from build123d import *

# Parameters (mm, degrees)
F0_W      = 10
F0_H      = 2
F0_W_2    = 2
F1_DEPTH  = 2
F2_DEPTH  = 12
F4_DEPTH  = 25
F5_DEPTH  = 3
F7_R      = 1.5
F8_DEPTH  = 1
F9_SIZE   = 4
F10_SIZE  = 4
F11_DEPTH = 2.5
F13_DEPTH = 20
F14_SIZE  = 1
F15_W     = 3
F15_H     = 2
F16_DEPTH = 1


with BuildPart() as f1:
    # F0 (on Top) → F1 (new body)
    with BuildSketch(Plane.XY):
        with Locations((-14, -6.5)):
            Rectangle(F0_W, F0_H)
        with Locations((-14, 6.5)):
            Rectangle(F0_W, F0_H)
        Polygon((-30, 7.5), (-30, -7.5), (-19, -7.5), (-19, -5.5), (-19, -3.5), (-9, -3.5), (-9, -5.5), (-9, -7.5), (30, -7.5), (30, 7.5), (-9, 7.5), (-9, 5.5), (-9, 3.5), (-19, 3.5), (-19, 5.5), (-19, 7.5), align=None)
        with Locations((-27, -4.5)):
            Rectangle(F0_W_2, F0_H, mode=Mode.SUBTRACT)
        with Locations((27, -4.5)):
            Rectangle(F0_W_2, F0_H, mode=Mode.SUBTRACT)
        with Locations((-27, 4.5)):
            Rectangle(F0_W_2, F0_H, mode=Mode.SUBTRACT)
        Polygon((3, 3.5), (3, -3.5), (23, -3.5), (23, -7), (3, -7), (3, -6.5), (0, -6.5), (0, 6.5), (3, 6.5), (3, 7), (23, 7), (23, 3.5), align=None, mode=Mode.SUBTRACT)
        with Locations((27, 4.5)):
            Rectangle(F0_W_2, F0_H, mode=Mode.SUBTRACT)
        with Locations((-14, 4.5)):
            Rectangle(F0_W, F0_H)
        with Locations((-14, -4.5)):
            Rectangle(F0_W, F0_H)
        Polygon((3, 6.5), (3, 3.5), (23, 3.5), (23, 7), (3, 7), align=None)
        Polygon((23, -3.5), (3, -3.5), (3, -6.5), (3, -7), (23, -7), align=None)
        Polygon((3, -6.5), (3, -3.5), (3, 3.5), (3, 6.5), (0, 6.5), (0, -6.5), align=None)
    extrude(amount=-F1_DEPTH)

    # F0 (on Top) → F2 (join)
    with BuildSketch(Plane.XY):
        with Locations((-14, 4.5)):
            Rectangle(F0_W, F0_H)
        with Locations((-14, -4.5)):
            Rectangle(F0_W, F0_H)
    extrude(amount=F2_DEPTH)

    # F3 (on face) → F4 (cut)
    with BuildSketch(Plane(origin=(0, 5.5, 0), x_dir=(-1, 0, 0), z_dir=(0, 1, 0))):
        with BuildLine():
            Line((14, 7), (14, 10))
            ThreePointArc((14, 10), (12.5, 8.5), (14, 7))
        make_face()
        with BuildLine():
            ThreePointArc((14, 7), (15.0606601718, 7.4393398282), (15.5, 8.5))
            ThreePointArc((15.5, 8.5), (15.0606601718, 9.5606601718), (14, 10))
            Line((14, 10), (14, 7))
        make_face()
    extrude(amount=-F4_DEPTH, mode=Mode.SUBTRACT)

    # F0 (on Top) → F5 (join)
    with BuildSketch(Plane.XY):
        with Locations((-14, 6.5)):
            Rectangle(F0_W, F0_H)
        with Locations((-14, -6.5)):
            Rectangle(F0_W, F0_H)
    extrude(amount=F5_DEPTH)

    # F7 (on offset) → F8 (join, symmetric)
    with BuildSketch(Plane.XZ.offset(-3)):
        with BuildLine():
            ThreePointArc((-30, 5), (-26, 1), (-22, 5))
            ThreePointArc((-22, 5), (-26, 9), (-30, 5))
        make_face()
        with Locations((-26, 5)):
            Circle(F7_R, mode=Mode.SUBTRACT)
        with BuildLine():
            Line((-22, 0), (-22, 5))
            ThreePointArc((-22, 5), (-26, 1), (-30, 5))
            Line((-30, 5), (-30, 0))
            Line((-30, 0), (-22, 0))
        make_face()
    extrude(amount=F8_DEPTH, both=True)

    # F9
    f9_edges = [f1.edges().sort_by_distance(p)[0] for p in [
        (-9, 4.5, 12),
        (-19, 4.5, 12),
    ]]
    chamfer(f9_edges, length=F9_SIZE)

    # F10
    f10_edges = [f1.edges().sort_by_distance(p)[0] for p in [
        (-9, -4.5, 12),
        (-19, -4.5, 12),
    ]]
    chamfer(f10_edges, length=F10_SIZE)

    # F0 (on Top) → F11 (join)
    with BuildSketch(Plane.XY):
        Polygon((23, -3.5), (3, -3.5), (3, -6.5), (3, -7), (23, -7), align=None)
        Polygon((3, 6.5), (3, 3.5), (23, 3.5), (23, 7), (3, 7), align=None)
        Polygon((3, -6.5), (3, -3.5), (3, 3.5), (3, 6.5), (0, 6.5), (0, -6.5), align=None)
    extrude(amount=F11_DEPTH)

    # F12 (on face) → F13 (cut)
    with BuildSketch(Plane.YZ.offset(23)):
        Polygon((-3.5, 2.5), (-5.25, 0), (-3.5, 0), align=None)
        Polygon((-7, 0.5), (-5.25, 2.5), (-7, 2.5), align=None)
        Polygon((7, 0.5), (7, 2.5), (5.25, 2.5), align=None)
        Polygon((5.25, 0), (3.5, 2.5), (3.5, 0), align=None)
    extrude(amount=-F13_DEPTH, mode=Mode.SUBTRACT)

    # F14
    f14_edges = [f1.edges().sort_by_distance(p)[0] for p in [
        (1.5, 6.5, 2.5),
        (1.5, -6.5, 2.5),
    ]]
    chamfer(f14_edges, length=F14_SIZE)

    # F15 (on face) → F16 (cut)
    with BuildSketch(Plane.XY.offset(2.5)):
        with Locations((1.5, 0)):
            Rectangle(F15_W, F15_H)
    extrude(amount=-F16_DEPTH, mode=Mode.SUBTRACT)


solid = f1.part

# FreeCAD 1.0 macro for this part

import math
import FreeCAD as App
import Part
import Sketcher

V = App.Vector
Q = App.Units.Quantity


def edges_at(feature, points):
    """Names of the edges that pass closest to the given points."""
    edges = feature.Shape.Edges
    near = lambda p: min(range(len(edges)), key=lambda i: edges[i].distToShape(Part.Vertex(*p))[0])
    return sorted({f"Edge{near(p) + 1}" for p in points})

doc = App.newDocument("Part")
body = doc.addObject("PartDesign::Body", "Body")

sketch1 = doc.addObject("Sketcher::SketchObject", "Sketch")
body.addObject(sketch1)
sketch1.AttachmentSupport = (doc.XY_Plane, [""])
sketch1.MapMode = "FlatFace"
sketch1.addGeometry(Part.LineSegment(V(30, -7.5, 0), V(30, 7.5, 0)), False)
sketch1.addGeometry(Part.LineSegment(V(30, 7.5, 0), V(-30, 7.5, 0)), False)
sketch1.addGeometry(Part.LineSegment(V(-30, 7.5, 0), V(-30, -7.5, 0)), False)
sketch1.addGeometry(Part.LineSegment(V(-30, -7.5, 0), V(30, -7.5, 0)), False)
sketch1.addGeometry(Part.LineSegment(V(-26, -5.5, 0), V(-28, -5.5, 0)), False)
sketch1.addGeometry(Part.LineSegment(V(-28, -5.5, 0), V(-28, -3.5, 0)), False)
sketch1.addGeometry(Part.LineSegment(V(-28, -3.5, 0), V(-26, -3.5, 0)), False)
sketch1.addGeometry(Part.LineSegment(V(-26, -3.5, 0), V(-26, -5.5, 0)), False)
sketch1.addGeometry(Part.LineSegment(V(28, -5.5, 0), V(26, -5.5, 0)), False)
sketch1.addGeometry(Part.LineSegment(V(26, -5.5, 0), V(26, -3.5, 0)), False)
sketch1.addGeometry(Part.LineSegment(V(26, -3.5, 0), V(28, -3.5, 0)), False)
sketch1.addGeometry(Part.LineSegment(V(28, -3.5, 0), V(28, -5.5, 0)), False)
sketch1.addGeometry(Part.LineSegment(V(-26, 3.5, 0), V(-28, 3.5, 0)), False)
sketch1.addGeometry(Part.LineSegment(V(-28, 3.5, 0), V(-28, 5.5, 0)), False)
sketch1.addGeometry(Part.LineSegment(V(-28, 5.5, 0), V(-26, 5.5, 0)), False)
sketch1.addGeometry(Part.LineSegment(V(-26, 5.5, 0), V(-26, 3.5, 0)), False)
sketch1.addGeometry(Part.LineSegment(V(28, 3.5, 0), V(26, 3.5, 0)), False)
sketch1.addGeometry(Part.LineSegment(V(26, 3.5, 0), V(26, 5.5, 0)), False)
sketch1.addGeometry(Part.LineSegment(V(26, 5.5, 0), V(28, 5.5, 0)), False)
sketch1.addGeometry(Part.LineSegment(V(28, 5.5, 0), V(28, 3.5, 0)), False)
sketch1.addConstraint(Sketcher.Constraint("Coincident", 0, 2, 1, 1))
sketch1.addConstraint(Sketcher.Constraint("Coincident", 1, 2, 2, 1))
sketch1.addConstraint(Sketcher.Constraint("Coincident", 2, 2, 3, 1))
sketch1.addConstraint(Sketcher.Constraint("Coincident", 3, 2, 0, 1))
sketch1.addConstraint(Sketcher.Constraint("Coincident", 4, 2, 5, 1))
sketch1.addConstraint(Sketcher.Constraint("Coincident", 5, 2, 6, 1))
sketch1.addConstraint(Sketcher.Constraint("Coincident", 6, 2, 7, 1))
sketch1.addConstraint(Sketcher.Constraint("Coincident", 7, 2, 4, 1))
sketch1.addConstraint(Sketcher.Constraint("Coincident", 8, 2, 9, 1))
sketch1.addConstraint(Sketcher.Constraint("Coincident", 9, 2, 10, 1))
sketch1.addConstraint(Sketcher.Constraint("Coincident", 10, 2, 11, 1))
sketch1.addConstraint(Sketcher.Constraint("Coincident", 11, 2, 8, 1))
sketch1.addConstraint(Sketcher.Constraint("Coincident", 12, 2, 13, 1))
sketch1.addConstraint(Sketcher.Constraint("Coincident", 13, 2, 14, 1))
sketch1.addConstraint(Sketcher.Constraint("Coincident", 14, 2, 15, 1))
sketch1.addConstraint(Sketcher.Constraint("Coincident", 15, 2, 12, 1))
sketch1.addConstraint(Sketcher.Constraint("Coincident", 16, 2, 17, 1))
sketch1.addConstraint(Sketcher.Constraint("Coincident", 17, 2, 18, 1))
sketch1.addConstraint(Sketcher.Constraint("Coincident", 18, 2, 19, 1))
sketch1.addConstraint(Sketcher.Constraint("Coincident", 19, 2, 16, 1))
sketch1.addConstraint(Sketcher.Constraint("Vertical", 0))
sketch1.addConstraint(Sketcher.Constraint("Horizontal", 1))
sketch1.addConstraint(Sketcher.Constraint("Vertical", 2))
sketch1.addConstraint(Sketcher.Constraint("Horizontal", 3))
sketch1.addConstraint(Sketcher.Constraint("Horizontal", 4))
sketch1.addConstraint(Sketcher.Constraint("Vertical", 5))
sketch1.addConstraint(Sketcher.Constraint("Horizontal", 6))
sketch1.addConstraint(Sketcher.Constraint("Vertical", 7))
sketch1.addConstraint(Sketcher.Constraint("Horizontal", 8))
sketch1.addConstraint(Sketcher.Constraint("Vertical", 9))
sketch1.addConstraint(Sketcher.Constraint("Horizontal", 10))
sketch1.addConstraint(Sketcher.Constraint("Vertical", 11))
sketch1.addConstraint(Sketcher.Constraint("Horizontal", 12))
sketch1.addConstraint(Sketcher.Constraint("Vertical", 13))
sketch1.addConstraint(Sketcher.Constraint("Horizontal", 14))
sketch1.addConstraint(Sketcher.Constraint("Vertical", 15))
sketch1.addConstraint(Sketcher.Constraint("Horizontal", 16))
sketch1.addConstraint(Sketcher.Constraint("Vertical", 17))
sketch1.addConstraint(Sketcher.Constraint("Horizontal", 18))
sketch1.addConstraint(Sketcher.Constraint("Vertical", 19))
sketch1.addConstraint(Sketcher.Constraint("Symmetric", 0, 2, 2, 2, -1, 1))
sketch1.addConstraint(Sketcher.Constraint("Symmetric", 10, 2, 12, 2, -1, 1))
sketch1.addConstraint(Sketcher.Constraint("Symmetric", 8, 2, 14, 2, -1, 1))
sketch1.addConstraint(Sketcher.Constraint("Symmetric", 6, 2, 16, 2, -1, 1))
sketch1.addConstraint(Sketcher.Constraint("Symmetric", 4, 2, 18, 2, -1, 1))
sketch1.addConstraint(Sketcher.Constraint("Symmetric", 7, 2, 8, 2, -2))
sketch1.addConstraint(Sketcher.Constraint("Symmetric", 5, 2, 10, 2, -2))
sketch1.addConstraint(Sketcher.Constraint("Equal", 18, 5))
sketch1.addConstraint(Sketcher.Constraint("DistanceX", 1, 2, 1, 1, Q("60 mm")))
sketch1.addConstraint(Sketcher.Constraint("DistanceX", 4, 2, 4, 1, Q("2 mm")))
sketch1.addConstraint(Sketcher.Constraint("DistanceY", 0, 1, 0, 2, Q("15 mm")))
sketch1.addConstraint(Sketcher.Constraint("DistanceX", 4, 2, -1, 1, Q("28 mm")))
sketch1.addConstraint(Sketcher.Constraint("DistanceY", 2, 2, 4, 2, Q("2 mm")))
pad1 = doc.addObject("PartDesign::Pad", "Pad")
body.addObject(pad1)
pad1.Profile = sketch1
pad1.Length = 2
pad1.Reversed = True

sketch2 = doc.addObject("Sketcher::SketchObject", "Sketch001")
body.addObject(sketch2)
sketch2.AttachmentSupport = (doc.XY_Plane, [""])
sketch2.MapMode = "FlatFace"
sketch2.addGeometry(Part.LineSegment(V(-19, 5.5, 0), V(-19, 3.5, 0)), False)
sketch2.addGeometry(Part.LineSegment(V(-19, 3.5, 0), V(-9, 3.5, 0)), False)
sketch2.addGeometry(Part.LineSegment(V(-9, 3.5, 0), V(-9, 5.5, 0)), False)
sketch2.addGeometry(Part.LineSegment(V(-9, 5.5, 0), V(-19, 5.5, 0)), False)
sketch2.addGeometry(Part.LineSegment(V(-19, -3.5, 0), V(-19, -5.5, 0)), False)
sketch2.addGeometry(Part.LineSegment(V(-19, -5.5, 0), V(-9, -5.5, 0)), False)
sketch2.addGeometry(Part.LineSegment(V(-9, -5.5, 0), V(-9, -3.5, 0)), False)
sketch2.addGeometry(Part.LineSegment(V(-9, -3.5, 0), V(-19, -3.5, 0)), False)
sketch2.addConstraint(Sketcher.Constraint("Coincident", 0, 2, 1, 1))
sketch2.addConstraint(Sketcher.Constraint("Coincident", 1, 2, 2, 1))
sketch2.addConstraint(Sketcher.Constraint("Coincident", 2, 2, 3, 1))
sketch2.addConstraint(Sketcher.Constraint("Coincident", 3, 2, 0, 1))
sketch2.addConstraint(Sketcher.Constraint("Coincident", 4, 2, 5, 1))
sketch2.addConstraint(Sketcher.Constraint("Coincident", 5, 2, 6, 1))
sketch2.addConstraint(Sketcher.Constraint("Coincident", 6, 2, 7, 1))
sketch2.addConstraint(Sketcher.Constraint("Coincident", 7, 2, 4, 1))
sketch2.addConstraint(Sketcher.Constraint("Vertical", 0))
sketch2.addConstraint(Sketcher.Constraint("Horizontal", 1))
sketch2.addConstraint(Sketcher.Constraint("Vertical", 2))
sketch2.addConstraint(Sketcher.Constraint("Horizontal", 3))
sketch2.addConstraint(Sketcher.Constraint("Vertical", 4))
sketch2.addConstraint(Sketcher.Constraint("Horizontal", 5))
sketch2.addConstraint(Sketcher.Constraint("Vertical", 6))
sketch2.addConstraint(Sketcher.Constraint("Horizontal", 7))
sketch2.addConstraint(Sketcher.Constraint("Symmetric", 3, 2, 4, 2, -1))
sketch2.addConstraint(Sketcher.Constraint("Symmetric", 1, 2, 6, 2, -1))
sketch2.addConstraint(Sketcher.Constraint("DistanceX", 1, 1, 1, 2, Q("10 mm")))
sketch2.addConstraint(Sketcher.Constraint("DistanceY", 0, 2, 0, 1, Q("2 mm")))
sketch2.addConstraint(Sketcher.Constraint("DistanceX", 0, 2, -1, 1, Q("19 mm")))
sketch2.addConstraint(Sketcher.Constraint("DistanceY", 4, 2, 0, 2, Q("9 mm")))
pad2 = doc.addObject("PartDesign::Pad", "Pad001")
body.addObject(pad2)
pad2.Profile = sketch2
pad2.Length = 12

sketch3 = doc.addObject("Sketcher::SketchObject", "Sketch002")
body.addObject(sketch3)
sketch3.AttachmentSupport = (doc.XZ_Plane, [""])
sketch3.MapMode = "FlatFace"
sketch3.AttachmentOffset = App.Placement(V(0, 0, -5.5), App.Rotation())
sketch3.addGeometry(Part.ArcOfCircle(Part.Circle(V(-14, 8.5, 0), V(0, 0, 1), 1.5), math.radians(-90), math.radians(90)), False)
sketch3.addGeometry(Part.ArcOfCircle(Part.Circle(V(-14, 8.5, 0), V(0, 0, 1), 1.5), math.radians(180), math.radians(270)), False)
sketch3.addGeometry(Part.ArcOfCircle(Part.Circle(V(-14, 8.5, 0), V(0, 0, 1), 1.5), math.radians(90), math.radians(180)), False)
sketch3.addConstraint(Sketcher.Constraint("Tangent", 0, 1, 1, 2))
sketch3.addConstraint(Sketcher.Constraint("Tangent", 1, 1, 2, 2))
sketch3.addConstraint(Sketcher.Constraint("Tangent", 2, 1, 0, 2))
sketch3.addConstraint(Sketcher.Constraint("Horizontal", 2, 3, 1, 1))
sketch3.addConstraint(Sketcher.Constraint("Vertical", 2, 3, 0, 1))
sketch3.addConstraint(Sketcher.Constraint("Vertical", 0, 1, 2, 1))
sketch3.addConstraint(Sketcher.Constraint("Radius", 0, Q("1.5 mm")))
sketch3.addConstraint(Sketcher.Constraint("DistanceX", 0, 3, -1, 1, Q("14 mm")))
sketch3.addConstraint(Sketcher.Constraint("DistanceY", -1, 1, 0, 1, Q("7 mm")))
pocket1 = doc.addObject("PartDesign::Pocket", "Pocket")
body.addObject(pocket1)
pocket1.Profile = sketch3
pocket1.Length = 25
pocket1.Reversed = True

sketch4 = doc.addObject("Sketcher::SketchObject", "Sketch003")
body.addObject(sketch4)
sketch4.AttachmentSupport = (doc.XY_Plane, [""])
sketch4.MapMode = "FlatFace"
sketch4.addGeometry(Part.LineSegment(V(-19, 7.5, 0), V(-19, 5.5, 0)), False)
sketch4.addGeometry(Part.LineSegment(V(-19, 5.5, 0), V(-9, 5.5, 0)), False)
sketch4.addGeometry(Part.LineSegment(V(-9, 5.5, 0), V(-9, 7.5, 0)), False)
sketch4.addGeometry(Part.LineSegment(V(-9, 7.5, 0), V(-19, 7.5, 0)), False)
sketch4.addGeometry(Part.LineSegment(V(-19, -5.5, 0), V(-19, -7.5, 0)), False)
sketch4.addGeometry(Part.LineSegment(V(-19, -7.5, 0), V(-9, -7.5, 0)), False)
sketch4.addGeometry(Part.LineSegment(V(-9, -7.5, 0), V(-9, -5.5, 0)), False)
sketch4.addGeometry(Part.LineSegment(V(-9, -5.5, 0), V(-19, -5.5, 0)), False)
sketch4.addConstraint(Sketcher.Constraint("Coincident", 0, 2, 1, 1))
sketch4.addConstraint(Sketcher.Constraint("Coincident", 1, 2, 2, 1))
sketch4.addConstraint(Sketcher.Constraint("Coincident", 2, 2, 3, 1))
sketch4.addConstraint(Sketcher.Constraint("Coincident", 3, 2, 0, 1))
sketch4.addConstraint(Sketcher.Constraint("Coincident", 4, 2, 5, 1))
sketch4.addConstraint(Sketcher.Constraint("Coincident", 5, 2, 6, 1))
sketch4.addConstraint(Sketcher.Constraint("Coincident", 6, 2, 7, 1))
sketch4.addConstraint(Sketcher.Constraint("Coincident", 7, 2, 4, 1))
sketch4.addConstraint(Sketcher.Constraint("Vertical", 0))
sketch4.addConstraint(Sketcher.Constraint("Horizontal", 1))
sketch4.addConstraint(Sketcher.Constraint("Vertical", 2))
sketch4.addConstraint(Sketcher.Constraint("Horizontal", 3))
sketch4.addConstraint(Sketcher.Constraint("Vertical", 4))
sketch4.addConstraint(Sketcher.Constraint("Horizontal", 5))
sketch4.addConstraint(Sketcher.Constraint("Vertical", 6))
sketch4.addConstraint(Sketcher.Constraint("Horizontal", 7))
sketch4.addConstraint(Sketcher.Constraint("Symmetric", 3, 2, 4, 2, -1))
sketch4.addConstraint(Sketcher.Constraint("Symmetric", 1, 2, 6, 2, -1))
sketch4.addConstraint(Sketcher.Constraint("DistanceX", 1, 1, 1, 2, Q("10 mm")))
sketch4.addConstraint(Sketcher.Constraint("DistanceY", 0, 2, 0, 1, Q("2 mm")))
sketch4.addConstraint(Sketcher.Constraint("DistanceX", 0, 2, -1, 1, Q("19 mm")))
sketch4.addConstraint(Sketcher.Constraint("DistanceY", 4, 2, 0, 2, Q("13 mm")))
pad3 = doc.addObject("PartDesign::Pad", "Pad002")
body.addObject(pad3)
pad3.Profile = sketch4
pad3.Length = 3

sketch5 = doc.addObject("Sketcher::SketchObject", "Sketch004")
body.addObject(sketch5)
sketch5.AttachmentSupport = (doc.XZ_Plane, [""])
sketch5.MapMode = "FlatFace"
sketch5.AttachmentOffset = App.Placement(V(0, 0, -3), App.Rotation())
sketch5.addGeometry(Part.ArcOfCircle(Part.Circle(V(-26, 5, 0), V(0, 0, 1), 4), math.radians(0), math.radians(180)), False)
sketch5.addGeometry(Part.LineSegment(V(-30, 5, 0), V(-30, 0, 0)), False)
sketch5.addGeometry(Part.LineSegment(V(-30, 0, 0), V(-22, 0, 0)), False)
sketch5.addGeometry(Part.LineSegment(V(-22, 0, 0), V(-22, 5, 0)), False)
sketch5.addGeometry(Part.Circle(V(-26, 5, 0), V(0, 0, 1), 1.5), False)
sketch5.addConstraint(Sketcher.Constraint("Tangent", 0, 2, 1, 1))
sketch5.addConstraint(Sketcher.Constraint("Coincident", 1, 2, 2, 1))
sketch5.addConstraint(Sketcher.Constraint("Coincident", 2, 2, 3, 1))
sketch5.addConstraint(Sketcher.Constraint("Tangent", 3, 2, 0, 1))
sketch5.addConstraint(Sketcher.Constraint("Vertical", 1))
sketch5.addConstraint(Sketcher.Constraint("Horizontal", 2))
sketch5.addConstraint(Sketcher.Constraint("Vertical", 3))
sketch5.addConstraint(Sketcher.Constraint("Coincident", 4, 3, 0, 3))
sketch5.addConstraint(Sketcher.Constraint("PointOnObject", 1, 2, -1))
sketch5.addConstraint(Sketcher.Constraint("Diameter", 4, Q("3 mm")))
sketch5.addConstraint(Sketcher.Constraint("Radius", 0, Q("4 mm")))
sketch5.addConstraint(Sketcher.Constraint("DistanceY", 1, 2, 1, 1, Q("5 mm")))
sketch5.addConstraint(Sketcher.Constraint("DistanceX", 0, 3, -1, 1, Q("26 mm")))
pad4 = doc.addObject("PartDesign::Pad", "Pad003")
body.addObject(pad4)
pad4.Profile = sketch5
pad4.Length = 2
pad4.Midplane = True
doc.recompute()

chamfer = doc.addObject("PartDesign::Chamfer", "Chamfer")
body.addObject(chamfer)
chamfer.Base = (pad4, edges_at(pad4, [(-9, 4.5, 12), (-19, 4.5, 12)]))
chamfer.Size = 4
doc.recompute()

chamfer2 = doc.addObject("PartDesign::Chamfer", "Chamfer001")
body.addObject(chamfer2)
chamfer2.Base = (chamfer, edges_at(chamfer, [(-9, -4.5, 12), (-19, -4.5, 12)]))
chamfer2.Size = 4

sketch6 = doc.addObject("Sketcher::SketchObject", "Sketch005")
body.addObject(sketch6)
sketch6.AttachmentSupport = (doc.XY_Plane, [""])
sketch6.MapMode = "FlatFace"
sketch6.addGeometry(Part.LineSegment(V(23, -3.5, 0), V(3, -3.5, 0)), False)
sketch6.addGeometry(Part.LineSegment(V(3, -3.5, 0), V(3, 3.5, 0)), False)
sketch6.addGeometry(Part.LineSegment(V(3, 3.5, 0), V(23, 3.5, 0)), False)
sketch6.addGeometry(Part.LineSegment(V(23, 3.5, 0), V(23, 7, 0)), False)
sketch6.addGeometry(Part.LineSegment(V(23, 7, 0), V(3, 7, 0)), False)
sketch6.addGeometry(Part.LineSegment(V(3, 7, 0), V(3, 6.5, 0)), False)
sketch6.addGeometry(Part.LineSegment(V(3, 6.5, 0), V(0, 6.5, 0)), False)
sketch6.addGeometry(Part.LineSegment(V(0, 6.5, 0), V(0, -6.5, 0)), False)
sketch6.addGeometry(Part.LineSegment(V(0, -6.5, 0), V(3, -6.5, 0)), False)
sketch6.addGeometry(Part.LineSegment(V(3, -6.5, 0), V(3, -7, 0)), False)
sketch6.addGeometry(Part.LineSegment(V(3, -7, 0), V(23, -7, 0)), False)
sketch6.addGeometry(Part.LineSegment(V(23, -7, 0), V(23, -3.5, 0)), False)
sketch6.addConstraint(Sketcher.Constraint("Coincident", 0, 2, 1, 1))
sketch6.addConstraint(Sketcher.Constraint("Coincident", 1, 2, 2, 1))
sketch6.addConstraint(Sketcher.Constraint("Coincident", 2, 2, 3, 1))
sketch6.addConstraint(Sketcher.Constraint("Coincident", 3, 2, 4, 1))
sketch6.addConstraint(Sketcher.Constraint("Coincident", 4, 2, 5, 1))
sketch6.addConstraint(Sketcher.Constraint("Coincident", 5, 2, 6, 1))
sketch6.addConstraint(Sketcher.Constraint("Coincident", 6, 2, 7, 1))
sketch6.addConstraint(Sketcher.Constraint("Coincident", 7, 2, 8, 1))
sketch6.addConstraint(Sketcher.Constraint("Coincident", 8, 2, 9, 1))
sketch6.addConstraint(Sketcher.Constraint("Coincident", 9, 2, 10, 1))
sketch6.addConstraint(Sketcher.Constraint("Coincident", 10, 2, 11, 1))
sketch6.addConstraint(Sketcher.Constraint("Coincident", 11, 2, 0, 1))
sketch6.addConstraint(Sketcher.Constraint("Horizontal", 0))
sketch6.addConstraint(Sketcher.Constraint("Vertical", 1))
sketch6.addConstraint(Sketcher.Constraint("Horizontal", 2))
sketch6.addConstraint(Sketcher.Constraint("Vertical", 3))
sketch6.addConstraint(Sketcher.Constraint("Horizontal", 4))
sketch6.addConstraint(Sketcher.Constraint("Vertical", 5))
sketch6.addConstraint(Sketcher.Constraint("Horizontal", 6))
sketch6.addConstraint(Sketcher.Constraint("Vertical", 7))
sketch6.addConstraint(Sketcher.Constraint("Horizontal", 8))
sketch6.addConstraint(Sketcher.Constraint("Vertical", 9))
sketch6.addConstraint(Sketcher.Constraint("Horizontal", 10))
sketch6.addConstraint(Sketcher.Constraint("Vertical", 11))
sketch6.addConstraint(Sketcher.Constraint("Symmetric", 6, 2, 7, 2, -1, 1))
sketch6.addConstraint(Sketcher.Constraint("Symmetric", 4, 2, 9, 2, -1))
sketch6.addConstraint(Sketcher.Constraint("Symmetric", 2, 2, 11, 2, -1))
sketch6.addConstraint(Sketcher.Constraint("Vertical", 1, 2, 4, 2))
sketch6.addConstraint(Sketcher.Constraint("DistanceX", 0, 2, 0, 1, Q("20 mm")))
sketch6.addConstraint(Sketcher.Constraint("DistanceX", 6, 2, 6, 1, Q("3 mm")))
sketch6.addConstraint(Sketcher.Constraint("DistanceY", 1, 1, 1, 2, Q("7 mm")))
sketch6.addConstraint(Sketcher.Constraint("DistanceY", 7, 2, 7, 1, Q("13 mm")))
sketch6.addConstraint(Sketcher.Constraint("DistanceY", 3, 1, 3, 2, Q("3.5 mm")))
pad5 = doc.addObject("PartDesign::Pad", "Pad004")
body.addObject(pad5)
pad5.Profile = sketch6
pad5.Length = 2.5

sketch7 = doc.addObject("Sketcher::SketchObject", "Sketch006")
body.addObject(sketch7)
sketch7.AttachmentSupport = (doc.YZ_Plane, [""])
sketch7.MapMode = "FlatFace"
sketch7.AttachmentOffset = App.Placement(V(0, 0, 23), App.Rotation())
sketch7.addGeometry(Part.LineSegment(V(-3.5, 2.5, 0), V(-5.25, 0, 0)), False)
sketch7.addGeometry(Part.LineSegment(V(-5.25, 0, 0), V(-3.5, 0, 0)), False)
sketch7.addGeometry(Part.LineSegment(V(-3.5, 0, 0), V(-3.5, 2.5, 0)), False)
sketch7.addGeometry(Part.LineSegment(V(-7, 0.5, 0), V(-5.25, 2.5, 0)), False)
sketch7.addGeometry(Part.LineSegment(V(-5.25, 2.5, 0), V(-7, 2.5, 0)), False)
sketch7.addGeometry(Part.LineSegment(V(-7, 2.5, 0), V(-7, 0.5, 0)), False)
sketch7.addGeometry(Part.LineSegment(V(7, 0.5, 0), V(7, 2.5, 0)), False)
sketch7.addGeometry(Part.LineSegment(V(7, 2.5, 0), V(5.25, 2.5, 0)), False)
sketch7.addGeometry(Part.LineSegment(V(5.25, 2.5, 0), V(7, 0.5, 0)), False)
sketch7.addGeometry(Part.LineSegment(V(5.25, 0, 0), V(3.5, 2.5, 0)), False)
sketch7.addGeometry(Part.LineSegment(V(3.5, 2.5, 0), V(3.5, 0, 0)), False)
sketch7.addGeometry(Part.LineSegment(V(3.5, 0, 0), V(5.25, 0, 0)), False)
sketch7.addConstraint(Sketcher.Constraint("Coincident", 0, 2, 1, 1))
sketch7.addConstraint(Sketcher.Constraint("Coincident", 1, 2, 2, 1))
sketch7.addConstraint(Sketcher.Constraint("Coincident", 2, 2, 0, 1))
sketch7.addConstraint(Sketcher.Constraint("Coincident", 3, 2, 4, 1))
sketch7.addConstraint(Sketcher.Constraint("Coincident", 4, 2, 5, 1))
sketch7.addConstraint(Sketcher.Constraint("Coincident", 5, 2, 3, 1))
sketch7.addConstraint(Sketcher.Constraint("Coincident", 6, 2, 7, 1))
sketch7.addConstraint(Sketcher.Constraint("Coincident", 7, 2, 8, 1))
sketch7.addConstraint(Sketcher.Constraint("Coincident", 8, 2, 6, 1))
sketch7.addConstraint(Sketcher.Constraint("Coincident", 9, 2, 10, 1))
sketch7.addConstraint(Sketcher.Constraint("Coincident", 10, 2, 11, 1))
sketch7.addConstraint(Sketcher.Constraint("Coincident", 11, 2, 9, 1))
sketch7.addConstraint(Sketcher.Constraint("Horizontal", 1))
sketch7.addConstraint(Sketcher.Constraint("Vertical", 2))
sketch7.addConstraint(Sketcher.Constraint("Horizontal", 4))
sketch7.addConstraint(Sketcher.Constraint("Vertical", 5))
sketch7.addConstraint(Sketcher.Constraint("Vertical", 6))
sketch7.addConstraint(Sketcher.Constraint("Horizontal", 7))
sketch7.addConstraint(Sketcher.Constraint("Vertical", 10))
sketch7.addConstraint(Sketcher.Constraint("Horizontal", 11))
sketch7.addConstraint(Sketcher.Constraint("Symmetric", 1, 2, 10, 2, -1, 1))
sketch7.addConstraint(Sketcher.Constraint("Symmetric", 4, 2, 6, 2, -2))
sketch7.addConstraint(Sketcher.Constraint("Symmetric", 0, 2, 11, 2, -2))
sketch7.addConstraint(Sketcher.Constraint("Horizontal", 2, 2, 3, 2))
sketch7.addConstraint(Sketcher.Constraint("Horizontal", 5, 2, 8, 2))
sketch7.addConstraint(Sketcher.Constraint("Horizontal", 7, 2, 9, 2))
sketch7.addConstraint(Sketcher.Constraint("Vertical", 0, 2, 3, 2))
sketch7.addConstraint(Sketcher.Constraint("Vertical", 7, 2, 11, 2))
sketch7.addConstraint(Sketcher.Constraint("Equal", 1, 4))
sketch7.addConstraint(Sketcher.Constraint("DistanceY", 5, 2, 5, 1, Q("2 mm")))
sketch7.addConstraint(Sketcher.Constraint("DistanceY", 2, 1, 2, 2, Q("2.5 mm")))
sketch7.addConstraint(Sketcher.Constraint("DistanceX", 4, 2, -1, 1, Q("7 mm")))
sketch7.addConstraint(Sketcher.Constraint("DistanceX", 2, 2, 9, 2, Q("7 mm")))
pocket2 = doc.addObject("PartDesign::Pocket", "Pocket001")
body.addObject(pocket2)
pocket2.Profile = sketch7
pocket2.Length = 20
doc.recompute()

chamfer3 = doc.addObject("PartDesign::Chamfer", "Chamfer002")
body.addObject(chamfer3)
chamfer3.Base = (pocket2, edges_at(pocket2, [(1.5, 6.5, 2.5), (1.5, -6.5, 2.5)]))
chamfer3.Size = 1

sketch8 = doc.addObject("Sketcher::SketchObject", "Sketch007")
body.addObject(sketch8)
sketch8.AttachmentSupport = (doc.XY_Plane, [""])
sketch8.MapMode = "FlatFace"
sketch8.AttachmentOffset = App.Placement(V(0, 0, 2.5), App.Rotation())
sketch8.addGeometry(Part.LineSegment(V(0, 1, 0), V(0, -1, 0)), False)
sketch8.addGeometry(Part.LineSegment(V(0, -1, 0), V(3, -1, 0)), False)
sketch8.addGeometry(Part.LineSegment(V(3, -1, 0), V(3, 1, 0)), False)
sketch8.addGeometry(Part.LineSegment(V(3, 1, 0), V(0, 1, 0)), False)
sketch8.addConstraint(Sketcher.Constraint("Coincident", 0, 2, 1, 1))
sketch8.addConstraint(Sketcher.Constraint("Coincident", 1, 2, 2, 1))
sketch8.addConstraint(Sketcher.Constraint("Coincident", 2, 2, 3, 1))
sketch8.addConstraint(Sketcher.Constraint("Coincident", 3, 2, 0, 1))
sketch8.addConstraint(Sketcher.Constraint("Vertical", 0))
sketch8.addConstraint(Sketcher.Constraint("Horizontal", 1))
sketch8.addConstraint(Sketcher.Constraint("Vertical", 2))
sketch8.addConstraint(Sketcher.Constraint("Horizontal", 3))
sketch8.addConstraint(Sketcher.Constraint("Symmetric", 0, 2, 3, 2, -1, 1))
sketch8.addConstraint(Sketcher.Constraint("DistanceX", 1, 1, 1, 2, Q("3 mm")))
sketch8.addConstraint(Sketcher.Constraint("DistanceY", 0, 2, 0, 1, Q("2 mm")))
pocket3 = doc.addObject("PartDesign::Pocket", "Pocket002")
body.addObject(pocket3)
pocket3.Profile = sketch8
pocket3.Length = 1

doc.recompute()
